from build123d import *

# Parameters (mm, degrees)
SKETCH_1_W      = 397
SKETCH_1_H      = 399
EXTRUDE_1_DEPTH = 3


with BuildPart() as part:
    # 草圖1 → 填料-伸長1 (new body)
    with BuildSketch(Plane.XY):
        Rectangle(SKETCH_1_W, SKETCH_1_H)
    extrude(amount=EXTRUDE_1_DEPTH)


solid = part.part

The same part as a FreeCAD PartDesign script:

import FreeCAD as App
import Part
import Sketcher


def add_polygon(sketch, points):
    """Adds a closed chain of lines whose ends are joined by coincident constraints."""
    first, n = sketch.GeometryCount, len(points)
    for a, b in zip(points, points[1:] + points[:1]):
        sketch.addGeometry(Part.LineSegment(App.Vector(*a, 0), App.Vector(*b, 0)), False)
    for i in range(n):
        sketch.addConstraint(Sketcher.Constraint("Coincident", first + i, 2, first + (i + 1) % n, 1))

doc = App.newDocument("Part")
params = doc.addObject("Spreadsheet::Sheet", "Params")
for row, (alias, value) in enumerate([
    ("sketch1_width", "397 mm"),
    ("sketch1_height", "399 mm"),
    ("pad1_length", "3 mm"),
], start=1):
    params.set(f"A{row}", alias)
    params.set(f"B{row}", "=" + value)
    params.setAlias(f"B{row}", alias)

body = doc.addObject("PartDesign::Body", "Body")

# Sketch on XY plane
sketch1 = doc.addObject("Sketcher::SketchObject", "Sketch")
body.addObject(sketch1)
sketch1.AttachmentSupport = (doc.XY_Plane, [""])
sketch1.MapMode = "FlatFace"
add_polygon(sketch1, [(-198, 200), (-198, -200), (198, -200), (198, 200)])  # lines 0-3
sketch1.addConstraint([
    Sketcher.Constraint("Vertical", 0),
    Sketcher.Constraint("Horizontal", 1),
    Sketcher.Constraint("Vertical", 2),
    Sketcher.Constraint("Horizontal", 3),
    Sketcher.Constraint("Symmetric", 0, 2, 2, 2, -1, 1),
    Sketcher.Constraint("DistanceX", 1, 1, 1, 2, 397.0),
    Sketcher.Constraint("DistanceY", 0, 2, 0, 1, 399.0),
])
sketch1.setExpression("Constraints[9]", "Params.sketch1_width")
sketch1.setExpression("Constraints[10]", "Params.sketch1_height")
pad1 = doc.addObject("PartDesign::Pad", "Pad")
body.addObject(pad1)
pad1.Profile = sketch1
pad1.setExpression("Length", "Params.pad1_length")

doc.recompute()
